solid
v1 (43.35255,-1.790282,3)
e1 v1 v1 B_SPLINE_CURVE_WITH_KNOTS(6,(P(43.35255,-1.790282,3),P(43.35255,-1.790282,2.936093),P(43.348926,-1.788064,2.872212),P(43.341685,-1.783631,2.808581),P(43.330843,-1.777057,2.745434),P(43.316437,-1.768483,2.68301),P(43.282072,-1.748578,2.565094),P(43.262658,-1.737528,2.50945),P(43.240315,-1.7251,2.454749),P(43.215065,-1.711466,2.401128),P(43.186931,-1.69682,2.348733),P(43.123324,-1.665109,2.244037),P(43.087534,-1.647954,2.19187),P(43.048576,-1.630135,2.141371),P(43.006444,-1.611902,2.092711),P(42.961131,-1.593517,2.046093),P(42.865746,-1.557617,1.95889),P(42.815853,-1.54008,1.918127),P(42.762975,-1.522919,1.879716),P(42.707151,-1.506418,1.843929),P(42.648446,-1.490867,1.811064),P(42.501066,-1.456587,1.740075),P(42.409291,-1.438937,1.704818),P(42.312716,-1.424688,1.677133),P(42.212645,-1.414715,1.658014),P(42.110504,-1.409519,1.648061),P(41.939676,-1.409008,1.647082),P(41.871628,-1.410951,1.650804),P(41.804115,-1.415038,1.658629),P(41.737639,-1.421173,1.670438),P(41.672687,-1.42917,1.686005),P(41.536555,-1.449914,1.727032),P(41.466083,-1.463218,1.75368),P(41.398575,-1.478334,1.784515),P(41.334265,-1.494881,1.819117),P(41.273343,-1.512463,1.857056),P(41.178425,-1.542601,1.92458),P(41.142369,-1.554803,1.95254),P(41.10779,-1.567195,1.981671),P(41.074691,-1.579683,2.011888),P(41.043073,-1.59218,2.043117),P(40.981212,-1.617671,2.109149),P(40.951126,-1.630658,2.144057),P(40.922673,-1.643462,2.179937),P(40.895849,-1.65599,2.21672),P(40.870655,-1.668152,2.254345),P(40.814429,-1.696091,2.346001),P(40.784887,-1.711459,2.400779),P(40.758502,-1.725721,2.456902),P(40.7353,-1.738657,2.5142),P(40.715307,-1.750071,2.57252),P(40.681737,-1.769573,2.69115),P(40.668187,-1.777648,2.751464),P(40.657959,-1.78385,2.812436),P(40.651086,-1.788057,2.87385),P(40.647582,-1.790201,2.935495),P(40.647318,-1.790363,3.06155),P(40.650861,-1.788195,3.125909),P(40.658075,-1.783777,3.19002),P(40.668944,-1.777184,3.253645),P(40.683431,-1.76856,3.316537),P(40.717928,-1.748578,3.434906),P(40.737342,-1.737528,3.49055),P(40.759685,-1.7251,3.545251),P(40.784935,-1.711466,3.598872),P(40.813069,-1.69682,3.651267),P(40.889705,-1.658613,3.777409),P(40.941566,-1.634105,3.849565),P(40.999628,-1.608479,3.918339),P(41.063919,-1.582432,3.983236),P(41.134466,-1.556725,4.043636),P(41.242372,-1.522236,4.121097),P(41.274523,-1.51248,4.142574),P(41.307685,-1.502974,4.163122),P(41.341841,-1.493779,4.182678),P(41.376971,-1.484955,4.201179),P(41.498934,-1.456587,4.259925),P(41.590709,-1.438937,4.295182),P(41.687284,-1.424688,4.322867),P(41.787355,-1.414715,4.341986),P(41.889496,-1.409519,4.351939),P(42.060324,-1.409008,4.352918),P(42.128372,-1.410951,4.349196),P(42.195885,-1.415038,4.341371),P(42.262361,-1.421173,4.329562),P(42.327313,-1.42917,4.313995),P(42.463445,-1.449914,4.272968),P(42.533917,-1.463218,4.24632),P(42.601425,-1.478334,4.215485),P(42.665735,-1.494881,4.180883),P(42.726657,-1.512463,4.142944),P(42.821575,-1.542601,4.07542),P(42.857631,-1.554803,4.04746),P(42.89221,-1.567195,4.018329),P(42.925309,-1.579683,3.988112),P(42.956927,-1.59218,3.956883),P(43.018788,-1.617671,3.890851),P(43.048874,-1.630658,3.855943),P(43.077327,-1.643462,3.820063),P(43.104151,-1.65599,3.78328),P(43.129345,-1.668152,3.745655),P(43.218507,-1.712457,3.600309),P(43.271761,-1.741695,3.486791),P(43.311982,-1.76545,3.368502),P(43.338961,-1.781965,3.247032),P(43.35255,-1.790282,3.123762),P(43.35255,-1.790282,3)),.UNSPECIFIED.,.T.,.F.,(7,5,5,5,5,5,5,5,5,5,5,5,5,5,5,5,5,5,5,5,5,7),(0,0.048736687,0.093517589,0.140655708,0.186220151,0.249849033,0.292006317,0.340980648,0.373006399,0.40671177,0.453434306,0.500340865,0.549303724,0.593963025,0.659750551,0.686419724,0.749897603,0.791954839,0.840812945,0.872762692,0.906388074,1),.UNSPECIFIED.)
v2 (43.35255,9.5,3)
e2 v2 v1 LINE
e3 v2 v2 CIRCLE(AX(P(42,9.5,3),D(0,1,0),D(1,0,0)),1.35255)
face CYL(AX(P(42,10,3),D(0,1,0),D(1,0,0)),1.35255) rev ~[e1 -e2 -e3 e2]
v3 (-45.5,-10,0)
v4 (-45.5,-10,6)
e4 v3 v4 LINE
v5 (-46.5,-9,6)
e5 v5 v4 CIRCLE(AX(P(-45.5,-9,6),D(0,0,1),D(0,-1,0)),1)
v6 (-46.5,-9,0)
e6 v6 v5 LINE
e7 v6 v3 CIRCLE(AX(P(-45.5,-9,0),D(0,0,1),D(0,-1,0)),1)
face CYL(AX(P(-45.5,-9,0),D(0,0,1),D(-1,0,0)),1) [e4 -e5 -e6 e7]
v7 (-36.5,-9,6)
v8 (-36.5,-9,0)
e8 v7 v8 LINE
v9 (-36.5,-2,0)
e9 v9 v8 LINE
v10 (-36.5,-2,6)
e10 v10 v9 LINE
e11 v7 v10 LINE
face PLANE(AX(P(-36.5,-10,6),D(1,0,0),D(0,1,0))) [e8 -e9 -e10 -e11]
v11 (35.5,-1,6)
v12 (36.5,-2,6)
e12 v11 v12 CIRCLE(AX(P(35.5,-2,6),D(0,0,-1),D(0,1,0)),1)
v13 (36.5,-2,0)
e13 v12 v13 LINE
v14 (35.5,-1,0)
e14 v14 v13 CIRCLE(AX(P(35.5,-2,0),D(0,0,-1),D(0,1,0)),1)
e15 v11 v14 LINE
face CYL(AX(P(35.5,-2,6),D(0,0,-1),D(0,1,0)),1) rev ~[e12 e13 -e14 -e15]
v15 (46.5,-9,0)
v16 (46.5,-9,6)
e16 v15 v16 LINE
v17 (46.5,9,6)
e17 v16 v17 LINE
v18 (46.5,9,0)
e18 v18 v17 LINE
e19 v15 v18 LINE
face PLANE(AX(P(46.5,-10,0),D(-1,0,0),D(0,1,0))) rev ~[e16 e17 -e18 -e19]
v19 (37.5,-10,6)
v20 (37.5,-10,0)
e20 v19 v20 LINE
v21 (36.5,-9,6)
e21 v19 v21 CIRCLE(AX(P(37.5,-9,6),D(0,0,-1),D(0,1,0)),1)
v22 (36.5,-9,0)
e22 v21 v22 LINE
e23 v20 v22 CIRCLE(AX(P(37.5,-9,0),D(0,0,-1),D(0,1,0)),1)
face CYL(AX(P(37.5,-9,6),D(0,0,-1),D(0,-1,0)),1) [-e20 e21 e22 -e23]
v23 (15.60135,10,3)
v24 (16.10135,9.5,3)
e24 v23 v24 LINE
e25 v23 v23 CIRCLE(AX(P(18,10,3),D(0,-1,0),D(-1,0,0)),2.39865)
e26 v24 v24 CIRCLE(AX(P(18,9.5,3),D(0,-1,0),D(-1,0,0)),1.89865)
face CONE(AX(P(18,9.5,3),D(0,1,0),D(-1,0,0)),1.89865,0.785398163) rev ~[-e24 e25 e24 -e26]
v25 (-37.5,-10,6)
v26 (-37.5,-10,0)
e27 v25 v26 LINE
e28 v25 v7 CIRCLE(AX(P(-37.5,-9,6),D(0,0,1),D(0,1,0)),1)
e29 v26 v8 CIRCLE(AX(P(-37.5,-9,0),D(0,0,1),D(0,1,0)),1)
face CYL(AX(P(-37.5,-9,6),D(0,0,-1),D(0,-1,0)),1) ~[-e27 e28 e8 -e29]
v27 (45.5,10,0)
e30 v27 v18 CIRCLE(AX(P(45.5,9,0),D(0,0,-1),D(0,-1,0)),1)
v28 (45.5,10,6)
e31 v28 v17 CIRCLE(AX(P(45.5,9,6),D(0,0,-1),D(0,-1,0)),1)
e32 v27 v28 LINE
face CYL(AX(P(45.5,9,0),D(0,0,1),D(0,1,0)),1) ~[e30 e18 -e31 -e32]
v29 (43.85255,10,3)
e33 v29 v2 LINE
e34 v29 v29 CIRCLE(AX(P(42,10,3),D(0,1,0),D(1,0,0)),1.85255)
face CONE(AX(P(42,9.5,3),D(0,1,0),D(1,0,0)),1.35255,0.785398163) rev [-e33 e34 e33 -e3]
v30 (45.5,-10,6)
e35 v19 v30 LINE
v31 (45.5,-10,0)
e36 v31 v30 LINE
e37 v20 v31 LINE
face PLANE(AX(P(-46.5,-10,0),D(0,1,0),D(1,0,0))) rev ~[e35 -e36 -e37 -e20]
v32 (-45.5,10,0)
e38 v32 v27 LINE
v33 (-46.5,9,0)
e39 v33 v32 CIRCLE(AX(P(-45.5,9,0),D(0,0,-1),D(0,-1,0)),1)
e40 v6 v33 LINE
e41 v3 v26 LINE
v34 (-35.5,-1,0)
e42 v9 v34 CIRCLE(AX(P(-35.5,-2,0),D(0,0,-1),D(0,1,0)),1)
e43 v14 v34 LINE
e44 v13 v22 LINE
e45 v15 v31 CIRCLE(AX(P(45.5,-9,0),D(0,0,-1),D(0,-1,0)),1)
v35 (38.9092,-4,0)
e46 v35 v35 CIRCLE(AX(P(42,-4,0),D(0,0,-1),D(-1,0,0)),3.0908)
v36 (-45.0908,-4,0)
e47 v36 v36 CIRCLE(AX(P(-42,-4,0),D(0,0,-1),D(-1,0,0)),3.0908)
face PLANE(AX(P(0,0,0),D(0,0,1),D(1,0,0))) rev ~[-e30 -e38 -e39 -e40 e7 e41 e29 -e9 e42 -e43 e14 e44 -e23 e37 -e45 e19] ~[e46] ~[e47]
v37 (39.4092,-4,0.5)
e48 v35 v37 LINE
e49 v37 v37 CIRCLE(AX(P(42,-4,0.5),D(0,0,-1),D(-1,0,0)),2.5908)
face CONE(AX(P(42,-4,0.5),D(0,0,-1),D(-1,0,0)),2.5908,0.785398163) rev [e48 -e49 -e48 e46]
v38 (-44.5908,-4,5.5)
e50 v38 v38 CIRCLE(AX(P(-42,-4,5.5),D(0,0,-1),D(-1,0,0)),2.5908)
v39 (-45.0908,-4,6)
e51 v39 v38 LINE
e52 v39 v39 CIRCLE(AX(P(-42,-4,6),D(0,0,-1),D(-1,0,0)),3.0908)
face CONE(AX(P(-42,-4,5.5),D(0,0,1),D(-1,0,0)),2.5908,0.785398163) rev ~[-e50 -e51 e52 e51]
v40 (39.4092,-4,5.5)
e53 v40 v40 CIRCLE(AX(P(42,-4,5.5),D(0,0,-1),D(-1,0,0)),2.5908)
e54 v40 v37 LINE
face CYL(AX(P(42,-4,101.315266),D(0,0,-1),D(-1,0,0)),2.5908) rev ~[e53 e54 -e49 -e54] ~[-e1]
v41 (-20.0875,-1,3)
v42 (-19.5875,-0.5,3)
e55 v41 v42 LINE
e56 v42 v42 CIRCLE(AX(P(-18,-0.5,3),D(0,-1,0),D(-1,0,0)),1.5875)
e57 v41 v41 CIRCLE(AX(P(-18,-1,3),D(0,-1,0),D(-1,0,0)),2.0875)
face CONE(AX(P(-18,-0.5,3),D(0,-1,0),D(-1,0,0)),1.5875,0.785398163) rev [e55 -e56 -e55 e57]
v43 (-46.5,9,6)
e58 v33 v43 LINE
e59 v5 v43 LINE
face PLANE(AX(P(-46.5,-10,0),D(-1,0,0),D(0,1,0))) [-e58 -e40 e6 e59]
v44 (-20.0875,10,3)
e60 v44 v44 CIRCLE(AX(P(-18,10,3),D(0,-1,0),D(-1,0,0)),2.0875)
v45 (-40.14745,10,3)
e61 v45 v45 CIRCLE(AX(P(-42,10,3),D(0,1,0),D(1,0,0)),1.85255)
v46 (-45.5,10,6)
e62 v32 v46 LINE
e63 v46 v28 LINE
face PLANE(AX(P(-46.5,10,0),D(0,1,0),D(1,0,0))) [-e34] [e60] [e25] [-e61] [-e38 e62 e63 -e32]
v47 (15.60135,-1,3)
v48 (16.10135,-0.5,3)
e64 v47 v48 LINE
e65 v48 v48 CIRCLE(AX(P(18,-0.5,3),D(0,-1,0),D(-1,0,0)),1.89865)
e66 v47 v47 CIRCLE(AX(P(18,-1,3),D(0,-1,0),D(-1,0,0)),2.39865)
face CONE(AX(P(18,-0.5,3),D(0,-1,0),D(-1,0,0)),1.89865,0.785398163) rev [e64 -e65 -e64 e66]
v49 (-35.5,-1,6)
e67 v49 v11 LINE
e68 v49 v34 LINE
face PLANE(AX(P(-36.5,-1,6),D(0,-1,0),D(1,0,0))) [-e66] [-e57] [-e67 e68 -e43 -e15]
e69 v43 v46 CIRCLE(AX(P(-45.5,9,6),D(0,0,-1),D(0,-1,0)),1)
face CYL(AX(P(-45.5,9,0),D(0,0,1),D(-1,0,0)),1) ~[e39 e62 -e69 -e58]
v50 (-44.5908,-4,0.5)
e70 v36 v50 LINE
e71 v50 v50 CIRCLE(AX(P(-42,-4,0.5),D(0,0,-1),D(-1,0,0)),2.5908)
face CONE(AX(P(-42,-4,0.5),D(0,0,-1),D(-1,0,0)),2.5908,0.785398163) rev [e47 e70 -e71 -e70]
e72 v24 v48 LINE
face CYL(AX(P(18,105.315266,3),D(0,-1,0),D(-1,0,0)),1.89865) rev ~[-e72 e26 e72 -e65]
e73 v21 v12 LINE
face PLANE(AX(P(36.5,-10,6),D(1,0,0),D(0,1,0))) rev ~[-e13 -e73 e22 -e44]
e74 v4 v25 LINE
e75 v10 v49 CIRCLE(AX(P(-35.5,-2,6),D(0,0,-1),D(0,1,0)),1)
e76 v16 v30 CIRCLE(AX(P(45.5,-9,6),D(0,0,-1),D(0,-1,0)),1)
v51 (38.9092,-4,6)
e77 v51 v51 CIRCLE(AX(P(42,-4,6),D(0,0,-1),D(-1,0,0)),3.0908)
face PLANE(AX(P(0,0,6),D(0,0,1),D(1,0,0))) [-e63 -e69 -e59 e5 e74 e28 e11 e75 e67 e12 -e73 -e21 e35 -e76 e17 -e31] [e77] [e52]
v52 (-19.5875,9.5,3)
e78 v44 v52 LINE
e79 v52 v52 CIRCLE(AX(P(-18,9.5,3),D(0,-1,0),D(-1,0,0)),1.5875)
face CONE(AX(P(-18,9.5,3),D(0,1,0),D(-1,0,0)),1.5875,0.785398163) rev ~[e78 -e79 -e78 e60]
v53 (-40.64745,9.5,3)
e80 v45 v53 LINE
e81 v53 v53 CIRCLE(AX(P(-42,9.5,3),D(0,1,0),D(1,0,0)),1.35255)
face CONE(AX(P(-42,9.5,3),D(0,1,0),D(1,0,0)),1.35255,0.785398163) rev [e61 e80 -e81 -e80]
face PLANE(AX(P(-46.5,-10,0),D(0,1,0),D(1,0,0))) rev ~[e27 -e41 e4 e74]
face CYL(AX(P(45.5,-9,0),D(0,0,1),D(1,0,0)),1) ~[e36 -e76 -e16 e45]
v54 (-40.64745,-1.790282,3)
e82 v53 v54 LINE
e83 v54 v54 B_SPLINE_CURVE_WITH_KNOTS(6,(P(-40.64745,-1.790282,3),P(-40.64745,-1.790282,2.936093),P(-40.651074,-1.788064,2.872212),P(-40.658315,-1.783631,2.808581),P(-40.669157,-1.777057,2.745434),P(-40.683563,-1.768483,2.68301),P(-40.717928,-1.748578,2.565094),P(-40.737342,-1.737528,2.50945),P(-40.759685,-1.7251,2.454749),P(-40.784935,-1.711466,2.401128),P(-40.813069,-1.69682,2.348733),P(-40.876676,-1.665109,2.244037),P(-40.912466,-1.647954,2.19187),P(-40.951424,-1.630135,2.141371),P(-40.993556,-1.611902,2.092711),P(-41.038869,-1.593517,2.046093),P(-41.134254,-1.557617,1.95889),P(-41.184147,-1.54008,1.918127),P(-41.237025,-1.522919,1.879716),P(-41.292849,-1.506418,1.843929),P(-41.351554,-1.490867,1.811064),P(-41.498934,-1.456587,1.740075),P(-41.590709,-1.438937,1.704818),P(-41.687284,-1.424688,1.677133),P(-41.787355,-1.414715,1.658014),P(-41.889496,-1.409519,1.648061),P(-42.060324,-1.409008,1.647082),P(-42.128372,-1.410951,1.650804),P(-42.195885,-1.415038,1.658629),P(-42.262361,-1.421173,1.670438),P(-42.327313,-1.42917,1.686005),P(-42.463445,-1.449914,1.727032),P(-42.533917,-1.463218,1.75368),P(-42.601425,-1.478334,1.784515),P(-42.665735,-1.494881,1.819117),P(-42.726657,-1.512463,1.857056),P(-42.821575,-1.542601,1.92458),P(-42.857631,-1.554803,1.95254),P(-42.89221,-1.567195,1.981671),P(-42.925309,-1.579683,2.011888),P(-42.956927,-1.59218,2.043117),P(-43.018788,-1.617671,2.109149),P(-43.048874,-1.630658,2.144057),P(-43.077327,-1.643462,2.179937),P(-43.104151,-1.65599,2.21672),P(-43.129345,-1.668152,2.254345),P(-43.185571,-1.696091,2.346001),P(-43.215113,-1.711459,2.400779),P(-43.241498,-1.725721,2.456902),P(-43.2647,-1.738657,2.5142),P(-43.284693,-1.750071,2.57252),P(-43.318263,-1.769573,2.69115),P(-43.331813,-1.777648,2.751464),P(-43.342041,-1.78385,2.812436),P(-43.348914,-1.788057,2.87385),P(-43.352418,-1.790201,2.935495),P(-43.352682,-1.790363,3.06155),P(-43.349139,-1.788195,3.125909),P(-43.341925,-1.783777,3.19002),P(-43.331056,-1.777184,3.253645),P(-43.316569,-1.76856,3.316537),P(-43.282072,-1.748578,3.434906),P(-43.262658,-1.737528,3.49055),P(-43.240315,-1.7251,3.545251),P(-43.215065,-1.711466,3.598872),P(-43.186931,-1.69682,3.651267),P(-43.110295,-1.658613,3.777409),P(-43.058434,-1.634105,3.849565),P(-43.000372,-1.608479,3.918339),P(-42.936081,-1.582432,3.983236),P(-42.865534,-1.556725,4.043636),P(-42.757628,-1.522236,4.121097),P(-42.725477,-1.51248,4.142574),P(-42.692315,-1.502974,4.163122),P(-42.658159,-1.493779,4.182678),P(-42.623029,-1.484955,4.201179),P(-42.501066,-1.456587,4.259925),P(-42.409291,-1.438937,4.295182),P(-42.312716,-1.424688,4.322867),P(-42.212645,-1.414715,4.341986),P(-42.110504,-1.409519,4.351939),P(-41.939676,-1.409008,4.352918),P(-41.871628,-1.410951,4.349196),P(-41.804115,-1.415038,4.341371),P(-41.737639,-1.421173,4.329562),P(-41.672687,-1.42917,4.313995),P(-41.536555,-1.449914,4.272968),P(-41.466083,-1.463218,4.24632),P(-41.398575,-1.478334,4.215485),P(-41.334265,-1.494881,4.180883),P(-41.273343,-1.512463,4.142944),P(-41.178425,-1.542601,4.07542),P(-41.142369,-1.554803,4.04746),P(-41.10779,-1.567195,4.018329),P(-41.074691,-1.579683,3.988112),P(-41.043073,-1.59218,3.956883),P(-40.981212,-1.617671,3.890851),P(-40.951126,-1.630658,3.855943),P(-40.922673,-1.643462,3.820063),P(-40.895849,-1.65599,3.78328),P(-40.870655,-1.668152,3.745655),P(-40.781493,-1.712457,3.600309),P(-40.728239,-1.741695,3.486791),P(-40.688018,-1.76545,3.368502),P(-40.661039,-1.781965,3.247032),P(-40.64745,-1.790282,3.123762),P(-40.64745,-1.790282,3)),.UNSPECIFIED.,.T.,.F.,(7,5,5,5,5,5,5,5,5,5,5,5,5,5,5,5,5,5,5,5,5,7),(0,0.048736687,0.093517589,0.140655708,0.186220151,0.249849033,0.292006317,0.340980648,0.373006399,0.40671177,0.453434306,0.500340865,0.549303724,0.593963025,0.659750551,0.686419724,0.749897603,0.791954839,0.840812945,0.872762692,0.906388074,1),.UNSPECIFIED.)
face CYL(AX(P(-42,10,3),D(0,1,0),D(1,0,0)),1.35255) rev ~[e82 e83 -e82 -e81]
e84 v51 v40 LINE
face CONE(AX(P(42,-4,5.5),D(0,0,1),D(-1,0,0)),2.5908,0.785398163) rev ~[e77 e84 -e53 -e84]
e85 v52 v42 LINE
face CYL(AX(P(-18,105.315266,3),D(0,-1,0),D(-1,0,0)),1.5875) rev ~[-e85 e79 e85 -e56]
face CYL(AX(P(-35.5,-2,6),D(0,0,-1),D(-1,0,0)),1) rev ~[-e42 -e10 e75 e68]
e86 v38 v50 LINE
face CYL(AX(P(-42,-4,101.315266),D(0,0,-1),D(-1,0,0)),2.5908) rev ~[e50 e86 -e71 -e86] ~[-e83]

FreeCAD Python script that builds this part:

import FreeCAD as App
import Part
import Sketcher
from FreeCAD import Vector
Q = App.Units.Quantity


def edges_at(feature, points):
    """Names of the edges that pass closest to the given points."""
    edges = feature.Shape.Edges
    near = lambda p: min(range(len(edges)), key=lambda i: edges[i].distToShape(Part.Vertex(*p))[0])
    return sorted({f"Edge{near(p) + 1}" for p in points})

doc = App.newDocument("Part")
body = doc.addObject("PartDesign::Body", "Body")

# Sketch on XY plane
sketch1 = body.newObject("Sketcher::SketchObject", "Sketch")
sketch1.AttachmentSupport = (doc.getObject("XY_Plane"), [""])
sketch1.MapMode = "FlatFace"
sketch1.addGeometry([
    Part.LineSegment(Vector(-46, 10, 0), Vector(-46, -10, 0)),
    Part.LineSegment(Vector(-46, -10, 0), Vector(46, -10, 0)),
    Part.LineSegment(Vector(46, -10, 0), Vector(46, 10, 0)),
    Part.LineSegment(Vector(46, 10, 0), Vector(-46, 10, 0)),
], False)
sketch1.addConstraint([
    Sketcher.Constraint("Coincident", 0, 2, 1, 1),
    Sketcher.Constraint("Coincident", 1, 2, 2, 1),
    Sketcher.Constraint("Coincident", 2, 2, 3, 1),
    Sketcher.Constraint("Coincident", 3, 2, 0, 1),
    Sketcher.Constraint("Vertical", 0),
    Sketcher.Constraint("Horizontal", 1),
    Sketcher.Constraint("Vertical", 2),
    Sketcher.Constraint("Horizontal", 3),
    Sketcher.Constraint("Symmetric", 0, 2, 2, 2, -1, 1),
    Sketcher.Constraint("DistanceX", 1, 1, 1, 2, Q("93 mm")),
    Sketcher.Constraint("DistanceY", 0, 2, 0, 1, Q("20 mm")),
])
pad1 = body.newObject("PartDesign::Pad", "Pad")
pad1.Profile = sketch1
pad1.Length = 6

# Sketch on XY plane
sketch2 = body.newObject("Sketcher::SketchObject", "Sketch001")
sketch2.AttachmentSupport = (doc.getObject("XY_Plane"), [""])
sketch2.MapMode = "FlatFace"
sketch2.AttachmentOffset = App.Placement(Vector(0, 0, 6), App.Rotation())
sketch2.addGeometry([
    Part.LineSegment(Vector(-36, -1, 0), Vector(-36, -10, 0)),
    Part.LineSegment(Vector(-36, -10, 0), Vector(36, -10, 0)),
    Part.LineSegment(Vector(36, -10, 0), Vector(36, -1, 0)),
    Part.LineSegment(Vector(36, -1, 0), Vector(-36, -1, 0)),
], False)
sketch2.addConstraint([
    Sketcher.Constraint("Coincident", 0, 2, 1, 1),
    Sketcher.Constraint("Coincident", 1, 2, 2, 1),
    Sketcher.Constraint("Coincident", 2, 2, 3, 1),
    Sketcher.Constraint("Coincident", 3, 2, 0, 1),
    Sketcher.Constraint("Vertical", 0),
    Sketcher.Constraint("Horizontal", 1),
    Sketcher.Constraint("Vertical", 2),
    Sketcher.Constraint("Horizontal", 3),
    Sketcher.Constraint("DistanceX", 1, 1, 1, 2, Q("73 mm")),
    Sketcher.Constraint("DistanceY", 0, 2, 0, 1, Q("9 mm")),
    Sketcher.Constraint("DistanceY", 0, 2, -1, 1, Q("10 mm")),
    Sketcher.Constraint("DistanceX", 0, 2, -1, 1, Q("36.5 mm")),
])
pocket1 = body.newObject("PartDesign::Pocket", "Pocket")
pocket1.Profile = sketch2
pocket1.Type = "UpToFirst"

# Sketch on XY plane
sketch3 = body.newObject("Sketcher::SketchObject", "Sketch002")
sketch3.AttachmentSupport = (doc.getObject("XY_Plane"), [""])
sketch3.MapMode = "FlatFace"
sketch3.AttachmentOffset = App.Placement(Vector(0, 0, 6), App.Rotation())
sketch3.addGeometry([
    Part.Circle(Vector(42, -4, 0), Vector(0, 0, 1), 2.6),
    Part.Circle(Vector(-42, -4, 0), Vector(0, 0, 1), 2.6),
], False)
sketch3.addConstraint([
    Sketcher.Constraint("Equal", 0, 1),
    Sketcher.Constraint("Symmetric", 0, 3, 1, 3, -2),
    Sketcher.Constraint("DistanceX", -1, 1, 0, 3, Q("42 mm")),
    Sketcher.Constraint("DistanceY", 0, 3, -1, 1, Q("4 mm")),
    Sketcher.Constraint("Diameter", 0, Q("5.1816 mm")),
])
doc.recompute()
hole = body.newObject("PartDesign::Hole", "Hole")
hole.Profile = sketch3
hole.ThreadType = "None"
hole.Diameter = 5.1816
hole.DepthType = "ThroughAll"

# Sketch on XZ plane
sketch4 = body.newObject("Sketcher::SketchObject", "Sketch003")
sketch4.AttachmentSupport = (doc.getObject("XZ_Plane"), [""])
sketch4.MapMode = "FlatFace"
sketch4.AttachmentOffset = App.Placement(Vector(0, 0, -10), App.Rotation())
sketch4.addGeometry(Part.Circle(Vector(18, 3, 0), Vector(0, 0, 1), 1.9), False)
sketch4.addConstraint([
    Sketcher.Constraint("DistanceX", -1, 1, 0, 3, Q("18 mm")),
    Sketcher.Constraint("DistanceY", -1, 1, 0, 3, Q("3 mm")),
    Sketcher.Constraint("Diameter", 0, Q("3.7973 mm")),
])
doc.recompute()
hole2 = body.newObject("PartDesign::Hole", "Hole001")
hole2.Profile = sketch4
hole2.ThreadType = "None"
hole2.Diameter = 3.7973
hole2.DepthType = "ThroughAll"
hole2.Reversed = True

# Sketch on XZ plane
sketch5 = body.newObject("Sketcher::SketchObject", "Sketch004")
sketch5.AttachmentSupport = (doc.getObject("XZ_Plane"), [""])
sketch5.MapMode = "FlatFace"
sketch5.AttachmentOffset = App.Placement(Vector(0, 0, -10), App.Rotation())
sketch5.addGeometry(Part.Circle(Vector(-42, 3, 0), Vector(0, 0, 1), 1.4), False)
sketch5.addConstraint([
    Sketcher.Constraint("DistanceX", 0, 3, -1, 1, Q("42 mm")),
    Sketcher.Constraint("DistanceY", -1, 1, 0, 3, Q("3 mm")),
    Sketcher.Constraint("Diameter", 0, Q("2.7051 mm")),
])
pocket2 = body.newObject("PartDesign::Pocket", "Pocket001")
pocket2.Profile = sketch5
pocket2.Type = "UpToFirst"
pocket2.Reversed = True

# Sketch on XZ plane
sketch6 = body.newObject("Sketcher::SketchObject", "Sketch005")
sketch6.AttachmentSupport = (doc.getObject("XZ_Plane"), [""])
sketch6.MapMode = "FlatFace"
sketch6.AttachmentOffset = App.Placement(Vector(0, 0, -10), App.Rotation())
sketch6.addGeometry(Part.Circle(Vector(42, 3, 0), Vector(0, 0, 1), 1.4), False)
sketch6.addConstraint([
    Sketcher.Constraint("DistanceX", -1, 1, 0, 3, Q("42 mm")),
    Sketcher.Constraint("DistanceY", -1, 1, 0, 3, Q("3 mm")),
    Sketcher.Constraint("Diameter", 0, Q("2.7051 mm")),
])
pocket3 = body.newObject("PartDesign::Pocket", "Pocket002")
pocket3.Profile = sketch6
pocket3.Type = "UpToFirst"
pocket3.Reversed = True

# Sketch on XZ plane
sketch7 = body.newObject("Sketcher::SketchObject", "Sketch006")
sketch7.AttachmentSupport = (doc.getObject("XZ_Plane"), [""])
sketch7.MapMode = "FlatFace"
sketch7.AttachmentOffset = App.Placement(Vector(0, 0, -10), App.Rotation())
sketch7.addGeometry(Part.Circle(Vector(-18, 3, 0), Vector(0, 0, 1), 1.6), False)
sketch7.addConstraint([
    Sketcher.Constraint("Diameter", 0, Q("3.175 mm")),
    Sketcher.Constraint("DistanceX", 0, 3, -1, 1, Q("18 mm")),
    Sketcher.Constraint("DistanceY", -1, 1, 0, 3, Q("3 mm")),
])
doc.recompute()
hole3 = body.newObject("PartDesign::Hole", "Hole002")
hole3.Profile = sketch7
hole3.ThreadType = "None"
hole3.Diameter = 3.175
hole3.DepthType = "ThroughAll"
hole3.Reversed = True
doc.recompute()

fillet = body.newObject("PartDesign::Fillet", "Fillet")
fillet.Base = (hole3, edges_at(hole3, [
    (-36.5, -10, 3),
    (-36.5, -1, 3),
    (36.5, -1, 3),
    (36.5, -10, 3),
    (46.5, -10, 3),
    (-46.5, -10, 3),
    (-46.5, 10, 3),
    (46.5, 10, 3),
]))
fillet.Radius = 1
doc.recompute()

chamfer = body.newObject("PartDesign::Chamfer", "Chamfer")
chamfer.Base = (fillet, edges_at(fillet, [
    (44.591, -4, 6),
    (44.591, -4, 0),
    (-39.409, -4, 6),
    (-39.409, -4, 0),
    (19.899, 10, 3),
    (19.899, -1, 3),
    (40.647, 10, 3),
    (-43.353, 10, 3),
    (-16.413, 10, 3),
    (-16.413, -1, 3),
]))
chamfer.Size = 0.5

doc.recompute()
